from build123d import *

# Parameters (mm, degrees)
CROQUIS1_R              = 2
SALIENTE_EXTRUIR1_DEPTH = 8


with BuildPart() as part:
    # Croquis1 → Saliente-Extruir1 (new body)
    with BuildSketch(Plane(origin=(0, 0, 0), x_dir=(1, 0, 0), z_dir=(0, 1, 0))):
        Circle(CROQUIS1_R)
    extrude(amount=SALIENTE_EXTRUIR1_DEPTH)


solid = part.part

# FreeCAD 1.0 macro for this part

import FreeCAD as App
import Part
import Sketcher
from FreeCAD import Vector
Q = App.Units.Quantity

doc = App.newDocument("Part")
body = doc.addObject("PartDesign::Body", "Body")

sketch1 = body.newObject("Sketcher::SketchObject", "Sketch")
sketch1.AttachmentSupport = (doc.getObject("XZ_Plane"), [""])
sketch1.MapMode = "FlatFace"
sketch1.addGeometry(Part.Circle(Vector(0, 0, 0), Vector(0, 0, 1), 2), False)
sketch1.addConstraint([
    Sketcher.Constraint("Coincident", 0, 3, -1, 1),
    Sketcher.Constraint("Diameter", 0, Q("4 mm")),
])
pad1 = body.newObject("PartDesign::Pad", "Pad")
pad1.Profile = sketch1
pad1.Length = 8
pad1.Reversed = True

doc.recompute()
